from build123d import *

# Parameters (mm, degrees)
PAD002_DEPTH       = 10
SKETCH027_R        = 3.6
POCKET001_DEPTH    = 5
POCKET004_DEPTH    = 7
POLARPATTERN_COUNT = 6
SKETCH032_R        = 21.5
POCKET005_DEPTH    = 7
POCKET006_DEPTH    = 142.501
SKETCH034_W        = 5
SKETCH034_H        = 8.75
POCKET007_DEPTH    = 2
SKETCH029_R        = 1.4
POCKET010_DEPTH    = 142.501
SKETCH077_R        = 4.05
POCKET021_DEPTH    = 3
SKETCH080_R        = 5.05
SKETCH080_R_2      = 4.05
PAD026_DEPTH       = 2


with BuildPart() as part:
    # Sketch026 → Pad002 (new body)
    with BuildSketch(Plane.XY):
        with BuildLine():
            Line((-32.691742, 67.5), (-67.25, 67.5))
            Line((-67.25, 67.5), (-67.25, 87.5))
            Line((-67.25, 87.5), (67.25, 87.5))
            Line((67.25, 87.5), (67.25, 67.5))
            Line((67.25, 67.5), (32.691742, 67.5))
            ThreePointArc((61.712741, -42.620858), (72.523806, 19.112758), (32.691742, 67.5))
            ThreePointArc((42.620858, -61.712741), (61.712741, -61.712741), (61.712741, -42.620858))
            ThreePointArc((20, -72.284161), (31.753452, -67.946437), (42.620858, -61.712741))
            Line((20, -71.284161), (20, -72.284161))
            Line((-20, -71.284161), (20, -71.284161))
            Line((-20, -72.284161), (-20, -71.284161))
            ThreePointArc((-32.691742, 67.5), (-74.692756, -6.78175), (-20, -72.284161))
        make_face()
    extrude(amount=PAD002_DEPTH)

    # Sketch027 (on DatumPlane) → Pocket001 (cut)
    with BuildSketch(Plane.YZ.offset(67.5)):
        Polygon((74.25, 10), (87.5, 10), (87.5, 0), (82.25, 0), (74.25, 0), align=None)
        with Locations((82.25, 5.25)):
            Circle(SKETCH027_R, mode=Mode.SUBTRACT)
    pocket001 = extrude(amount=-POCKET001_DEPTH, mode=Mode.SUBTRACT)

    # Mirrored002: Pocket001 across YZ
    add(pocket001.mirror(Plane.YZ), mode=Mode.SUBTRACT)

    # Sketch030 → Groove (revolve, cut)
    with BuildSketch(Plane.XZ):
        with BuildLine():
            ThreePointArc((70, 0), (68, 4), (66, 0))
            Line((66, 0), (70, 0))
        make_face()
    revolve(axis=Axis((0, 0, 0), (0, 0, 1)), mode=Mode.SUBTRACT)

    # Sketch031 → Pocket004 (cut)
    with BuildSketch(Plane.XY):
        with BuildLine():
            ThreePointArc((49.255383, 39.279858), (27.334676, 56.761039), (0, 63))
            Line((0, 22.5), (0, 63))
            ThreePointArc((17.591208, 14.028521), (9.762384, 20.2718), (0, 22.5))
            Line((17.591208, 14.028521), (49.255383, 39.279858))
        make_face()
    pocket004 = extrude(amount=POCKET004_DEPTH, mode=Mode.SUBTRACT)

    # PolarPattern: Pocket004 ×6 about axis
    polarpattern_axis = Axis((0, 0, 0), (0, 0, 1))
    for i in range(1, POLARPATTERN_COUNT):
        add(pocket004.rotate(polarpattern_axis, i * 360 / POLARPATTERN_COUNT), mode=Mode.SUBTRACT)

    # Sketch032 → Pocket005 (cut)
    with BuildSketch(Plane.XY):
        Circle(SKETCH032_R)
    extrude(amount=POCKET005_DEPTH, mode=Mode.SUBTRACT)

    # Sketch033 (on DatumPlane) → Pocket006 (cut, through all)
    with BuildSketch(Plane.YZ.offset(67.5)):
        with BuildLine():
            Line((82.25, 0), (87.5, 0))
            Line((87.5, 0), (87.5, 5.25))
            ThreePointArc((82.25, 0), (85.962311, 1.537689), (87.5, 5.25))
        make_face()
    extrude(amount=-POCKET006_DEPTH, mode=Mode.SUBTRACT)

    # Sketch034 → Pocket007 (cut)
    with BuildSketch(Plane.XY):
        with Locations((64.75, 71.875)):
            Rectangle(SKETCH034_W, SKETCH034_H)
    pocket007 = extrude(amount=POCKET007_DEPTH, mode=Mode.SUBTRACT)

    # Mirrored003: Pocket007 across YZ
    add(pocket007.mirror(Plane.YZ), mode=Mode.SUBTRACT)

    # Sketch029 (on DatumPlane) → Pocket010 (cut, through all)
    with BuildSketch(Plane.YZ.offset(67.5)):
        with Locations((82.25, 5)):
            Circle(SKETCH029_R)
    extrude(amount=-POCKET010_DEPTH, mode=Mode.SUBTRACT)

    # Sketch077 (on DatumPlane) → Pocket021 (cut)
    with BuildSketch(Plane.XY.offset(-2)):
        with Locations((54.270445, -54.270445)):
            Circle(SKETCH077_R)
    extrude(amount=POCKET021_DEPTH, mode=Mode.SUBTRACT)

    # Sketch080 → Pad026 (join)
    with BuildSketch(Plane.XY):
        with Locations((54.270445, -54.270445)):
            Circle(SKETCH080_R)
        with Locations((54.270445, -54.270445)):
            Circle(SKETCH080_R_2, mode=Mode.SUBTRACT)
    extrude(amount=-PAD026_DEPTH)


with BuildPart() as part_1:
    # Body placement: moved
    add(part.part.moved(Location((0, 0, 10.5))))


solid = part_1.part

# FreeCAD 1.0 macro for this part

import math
import FreeCAD as App
import Part
import Sketcher
from FreeCAD import Vector


def add_polygon(sketch, points):
    """Adds a closed chain of lines whose ends are joined by coincident constraints."""
    first, n = sketch.GeometryCount, len(points)
    for a, b in zip(points, points[1:] + points[:1]):
        sketch.addGeometry(Part.LineSegment(App.Vector(*a, 0), App.Vector(*b, 0)), False)
    for i in range(n):
        sketch.addConstraint(Sketcher.Constraint("Coincident", first + i, 2, first + (i + 1) % n, 1))

doc = App.newDocument("Part")
params = doc.addObject("Spreadsheet::Sheet", "Params")
for row, (alias, value) in enumerate([
    ("sketch1_radius", "75 mm"),
    ("sketch1_radius2", "13.5 mm"),
    ("sketch1_width", "40 mm"),
    ("sketch1_height", "1 mm"),
    ("sketch1_height2", "20 mm"),
    ("pad1_length", "10 mm"),
    ("sketch2_diameter", "7.2 mm"),
    ("sketch2_height", "10 mm"),
    ("sketch2_width", "13.25 mm"),
    ("pocket1_length", "5 mm"),
    ("sketch3_radius", "2.5 mm"),
    ("sketch3_width", "4 mm"),
    ("groove_angle", "360 deg"),
    ("sketch4_height", "40.5 mm"),
    ("pocket2_length", "7 mm"),
    ("sketch5_diameter", "43 mm"),
    ("pocket3_length", "7 mm"),
    ("sketch6_radius", "5.249999 mm"),
    ("sketch7_width", "5 mm"),
    ("sketch7_height", "8.75 mm"),
    ("pocket5_length", "2 mm"),
    ("sketch8_diameter", "2.8 mm"),
    ("sketch9_diameter", "8.1 mm"),
    ("pocket7_length", "3 mm"),
    ("sketch10_diameter", "10.1 mm"),
    ("sketch10_diameter2", "8.1 mm"),
    ("pad2_length", "2 mm"),
], start=1):
    params.set(f"A{row}", alias)
    params.set(f"B{row}", "=" + value)
    params.setAlias(f"B{row}", alias)

body = doc.addObject("PartDesign::Body", "Body")

sketch1 = body.newObject("Sketcher::SketchObject", "Sketch")
sketch1.AttachmentSupport = (doc.getObject("XY_Plane"), [""])
sketch1.MapMode = "FlatFace"
sketch1.addGeometry(Part.LineSegment(Vector(-67.25, 67.5, 0), Vector(-32.691742, 67.5, 0)), False)
sketch1.addGeometry(Part.ArcOfCircle(Part.Circle(Vector(0, 0, 0), Vector(0, 0, 1), 75), math.radians(115.841933), math.radians(254.53399)), False)
sketch1.addGeometry(Part.LineSegment(Vector(-20, -72.284161, 0), Vector(-20, -71.284161, 0)), False)
sketch1.addGeometry(Part.LineSegment(Vector(-20, -71.284161, 0), Vector(20, -71.284161, 0)), False)
sketch1.addGeometry(Part.LineSegment(Vector(20, -71.284161, 0), Vector(20, -72.284161, 0)), False)
sketch1.addGeometry(Part.ArcOfCircle(Part.Circle(Vector(0.000016, -0.000035, 0), Vector(0, 0, 1), 74.999962), math.radians(-74.533995), math.radians(-55.369755)), False)
sketch1.addGeometry(Part.ArcOfCircle(Part.Circle(Vector(52.1668, -52.1668, 0), Vector(0, 0, 1), 13.5), math.radians(-135), math.radians(45)), False)
sketch1.addGeometry(Part.ArcOfCircle(Part.Circle(Vector(0, 0, 0), Vector(0, 0, 1), 75), math.radians(-34.63024), math.radians(64.158067)), False)
sketch1.addGeometry(Part.LineSegment(Vector(32.691742, 67.5, 0), Vector(67.25, 67.5, 0)), False)
sketch1.addGeometry(Part.LineSegment(Vector(67.25, 67.5, 0), Vector(67.25, 87.5, 0)), False)
sketch1.addGeometry(Part.LineSegment(Vector(67.25, 87.5, 0), Vector(-67.25, 87.5, 0)), False)
sketch1.addGeometry(Part.LineSegment(Vector(-67.25, 87.5, 0), Vector(-67.25, 67.5, 0)), False)
sketch1.addConstraint(Sketcher.Constraint("Coincident", 0, 2, 1, 1))
sketch1.addConstraint(Sketcher.Constraint("Coincident", 1, 2, 2, 1))
sketch1.addConstraint(Sketcher.Constraint("Coincident", 2, 2, 3, 1))
sketch1.addConstraint(Sketcher.Constraint("Coincident", 3, 2, 4, 1))
sketch1.addConstraint(Sketcher.Constraint("Coincident", 4, 2, 5, 1))
sketch1.addConstraint(Sketcher.Constraint("Coincident", 5, 2, 6, 1))
sketch1.addConstraint(Sketcher.Constraint("Coincident", 6, 2, 7, 1))
sketch1.addConstraint(Sketcher.Constraint("Coincident", 7, 2, 8, 1))
sketch1.addConstraint(Sketcher.Constraint("Coincident", 8, 2, 9, 1))
sketch1.addConstraint(Sketcher.Constraint("Coincident", 9, 2, 10, 1))
sketch1.addConstraint(Sketcher.Constraint("Coincident", 10, 2, 11, 1))
sketch1.addConstraint(Sketcher.Constraint("Coincident", 11, 2, 0, 1))
sketch1.addConstraint(Sketcher.Constraint("Horizontal", 0))
sketch1.addConstraint(Sketcher.Constraint("Vertical", 2))
sketch1.addConstraint(Sketcher.Constraint("Horizontal", 3))
sketch1.addConstraint(Sketcher.Constraint("Vertical", 4))
sketch1.addConstraint(Sketcher.Constraint("Horizontal", 8))
sketch1.addConstraint(Sketcher.Constraint("Vertical", 9))
sketch1.addConstraint(Sketcher.Constraint("Horizontal", 10))
sketch1.addConstraint(Sketcher.Constraint("Vertical", 11))
sketch1.addConstraint(Sketcher.Constraint("Coincident", 1, 3, -1, 1))
sketch1.addConstraint(Sketcher.Constraint("Coincident", 7, 3, -1, 1))
sketch1.addConstraint(Sketcher.Constraint("Equal", 1, 7))
sketch1.addConstraint(Sketcher.Constraint("Symmetric", 1, 2, 4, 2, -2))
sketch1.addConstraint(Sketcher.Constraint("Symmetric", 8, 2, 11, 2, -2))
sketch1.addConstraint(Sketcher.Constraint("Radius", 1, 75.0))
sketch1.addConstraint(Sketcher.Constraint("Radius", 6, 13.5))
sketch1.addConstraint(Sketcher.Constraint("DistanceX", 3, 1, 3, 2, 40.0))
sketch1.addConstraint(Sketcher.Constraint("DistanceY", 2, 1, 2, 2, 1.0))
sketch1.addConstraint(Sketcher.Constraint("DistanceY", 9, 1, 9, 2, 20.0))
sketch1.addConstraint(Sketcher.Constraint("DistanceX", 10, 2, 10, 1, 134.5))
sketch1.addConstraint(Sketcher.Constraint("DistanceY", -1, 1, 0, 2, 67.5))
sketch1.addConstraint(Sketcher.Constraint("Radius", 5, 74.999962))
sketch1.addConstraint(Sketcher.Constraint("DistanceX", 7, 2, 6, 2, 29.020999))
sketch1.addConstraint(Sketcher.Constraint("DistanceX", -1, 1, 6, 3, 52.1668))
sketch1.addConstraint(Sketcher.Constraint("DistanceX", -1, 1, 5, 2, 42.620858))
sketch1.setExpression("Constraints[25]", "Params.sketch1_radius")
sketch1.setExpression("Constraints[26]", "Params.sketch1_radius2")
sketch1.setExpression("Constraints[27]", "Params.sketch1_width")
sketch1.setExpression("Constraints[28]", "Params.sketch1_height")
sketch1.setExpression("Constraints[29]", "Params.sketch1_height2")
pad1 = body.newObject("PartDesign::Pad", "Pad")
pad1.Profile = sketch1
pad1.setExpression("Length", "Params.pad1_length")

sketch2 = body.newObject("Sketcher::SketchObject", "Sketch001")
sketch2.AttachmentSupport = (doc.getObject("YZ_Plane"), [""])
sketch2.MapMode = "FlatFace"
sketch2.AttachmentOffset = App.Placement(Vector(0, 0, 67.5), App.Rotation())
add_polygon(sketch2, [(87.5, 10), (74.25, 10), (74.25, 0), (87.5, 0)])
sketch2.addGeometry(Part.Circle(Vector(82.25, 5.25, 0), Vector(0, 0, 1), 3.6), False)
sketch2.addConstraint(Sketcher.Constraint("Horizontal", 0))
sketch2.addConstraint(Sketcher.Constraint("Vertical", 1))
sketch2.addConstraint(Sketcher.Constraint("Horizontal", 2))
sketch2.addConstraint(Sketcher.Constraint("Vertical", 3))
sketch2.addConstraint(Sketcher.Constraint("PointOnObject", 1, 2, -1))
sketch2.addConstraint(Sketcher.Constraint("Diameter", 4, 7.2))
sketch2.addConstraint(Sketcher.Constraint("DistanceY", 1, 2, 1, 1, 10.0))
sketch2.addConstraint(Sketcher.Constraint("DistanceX", 0, 2, 4, 3, 8.0))
sketch2.addConstraint(Sketcher.Constraint("DistanceX", 0, 2, 0, 1, 13.25))
sketch2.addConstraint(Sketcher.Constraint("DistanceX", -1, 1, 2, 2, 87.5))
sketch2.addConstraint(Sketcher.Constraint("DistanceY", -1, 1, 4, 3, 5.25))
sketch2.setExpression("Constraints[9]", "Params.sketch2_diameter")
sketch2.setExpression("Constraints[10]", "Params.sketch2_height")
sketch2.setExpression("Constraints[12]", "Params.sketch2_width")
pocket1 = body.newObject("PartDesign::Pocket", "Pocket")
pocket1.Profile = sketch2
pocket1.setExpression("Length", "Params.pocket1_length")
doc.recompute()

mirrored = body.newObject("PartDesign::Mirrored", "Mirrored")
mirrored.Originals = [pocket1]
mirrored.MirrorPlane = (doc.getObject("YZ_Plane"), [""])
body.Tip = mirrored

sketch3 = body.newObject("Sketcher::SketchObject", "Sketch002")
sketch3.AttachmentSupport = (doc.getObject("XZ_Plane"), [""])
sketch3.MapMode = "FlatFace"
sketch3.addGeometry(Part.ArcOfCircle(Part.Circle(Vector(68, 1.5, 0), Vector(0, 0, 1), 2.5), math.radians(-36.869898), math.radians(216.869898)), False)
sketch3.addGeometry(Part.LineSegment(Vector(66, 0, 0), Vector(70, 0, 0)), False)
sketch3.addConstraint(Sketcher.Constraint("Coincident", 0, 1, 1, 2))
sketch3.addConstraint(Sketcher.Constraint("Coincident", 1, 1, 0, 2))
sketch3.addConstraint(Sketcher.Constraint("Horizontal", 1))
sketch3.addConstraint(Sketcher.Constraint("PointOnObject", 0, 1, -1))
sketch3.addConstraint(Sketcher.Constraint("Radius", 0, 2.5))
sketch3.addConstraint(Sketcher.Constraint("DistanceX", 1, 1, 1, 2, 4.0))
sketch3.addConstraint(Sketcher.Constraint("DistanceX", -1, 1, 0, 3, 68.0))
sketch3.setExpression("Constraints[4]", "Params.sketch3_radius")
sketch3.setExpression("Constraints[5]", "Params.sketch3_width")
groove = body.newObject("PartDesign::Groove", "Groove")
groove.Profile = sketch3
groove.ReferenceAxis = (sketch3, ["V_Axis"])
groove.setExpression("Angle", "Params.groove_angle")

sketch4 = body.newObject("Sketcher::SketchObject", "Sketch003")
sketch4.AttachmentSupport = (doc.getObject("XY_Plane"), [""])
sketch4.MapMode = "FlatFace"
sketch4.addGeometry(Part.ArcOfCircle(Part.Circle(Vector(0.000002, 0.000004, 0), Vector(0, 0, 1), 62.999996), math.radians(38.571427), math.radians(90.000002)), False)
sketch4.addGeometry(Part.LineSegment(Vector(0, 63, 0), Vector(0, 22.5, 0)), False)
sketch4.addGeometry(Part.ArcOfCircle(Part.Circle(Vector(0.000002, 0.000003, 0), Vector(0, 0, 1), 22.499997), math.radians(38.571426), math.radians(90.000004)), False)
sketch4.addGeometry(Part.LineSegment(Vector(17.591208, 14.028521, 0), Vector(49.255383, 39.279858, 0)), False)
sketch4.addConstraint(Sketcher.Constraint("Coincident", 0, 2, 1, 1))
sketch4.addConstraint(Sketcher.Constraint("Coincident", 1, 2, 2, 2))
sketch4.addConstraint(Sketcher.Constraint("Coincident", 2, 1, 3, 1))
sketch4.addConstraint(Sketcher.Constraint("Coincident", 3, 2, 0, 1))
sketch4.addConstraint(Sketcher.Constraint("Vertical", 1))
sketch4.addConstraint(Sketcher.Constraint("Coincident", 0, 3, -1, 1))
sketch4.addConstraint(Sketcher.Constraint("Coincident", 2, 3, -1, 1))
sketch4.addConstraint(Sketcher.Constraint("PointOnObject", 0, 2, -2))
sketch4.addConstraint(Sketcher.Constraint("DistanceY", 1, 2, 1, 1, 40.5))
sketch4.addConstraint(Sketcher.Constraint("DistanceY", -1, 1, 0, 2, 63.0))
sketch4.addConstraint(Sketcher.Constraint("DistanceX", -1, 1, 2, 1, 17.591208))
sketch4.addConstraint(Sketcher.Constraint("DistanceY", 3, 2, 0, 2, 23.720142))
sketch4.setExpression("Constraints[8]", "Params.sketch4_height")
pocket2 = body.newObject("PartDesign::Pocket", "Pocket001")
pocket2.Profile = sketch4
pocket2.setExpression("Length", "Params.pocket2_length")
pocket2.Reversed = True
doc.recompute()

polarpattern = body.newObject("PartDesign::PolarPattern", "PolarPattern")
polarpattern.Originals = [pocket2]
polarpattern.Axis = (doc.getObject("Z_Axis"), [""])
polarpattern.Angle = 360
polarpattern.Occurrences = 6
body.Tip = polarpattern

sketch5 = body.newObject("Sketcher::SketchObject", "Sketch004")
sketch5.AttachmentSupport = (doc.getObject("XY_Plane"), [""])
sketch5.MapMode = "FlatFace"
sketch5.addGeometry(Part.Circle(Vector(0, 0, 0), Vector(0, 0, 1), 21.5), False)
sketch5.addConstraint(Sketcher.Constraint("Coincident", 0, 3, -1, 1))
sketch5.addConstraint(Sketcher.Constraint("Diameter", 0, 43.0))
sketch5.setExpression("Constraints[1]", "Params.sketch5_diameter")
pocket3 = body.newObject("PartDesign::Pocket", "Pocket002")
pocket3.Profile = sketch5
pocket3.setExpression("Length", "Params.pocket3_length")
pocket3.Reversed = True

sketch6 = body.newObject("Sketcher::SketchObject", "Sketch005")
sketch6.AttachmentSupport = (doc.getObject("YZ_Plane"), [""])
sketch6.MapMode = "FlatFace"
sketch6.AttachmentOffset = App.Placement(Vector(0, 0, 67.5), App.Rotation())
sketch6.addGeometry(Part.LineSegment(Vector(82.25, 0, 0), Vector(87.5, 0, 0)), False)
sketch6.addGeometry(Part.LineSegment(Vector(87.5, 0, 0), Vector(87.5, 5.25, 0)), False)
sketch6.addGeometry(Part.ArcOfCircle(Part.Circle(Vector(82.250001, 5.249999, 0), Vector(0, 0, 1), 5.249999), math.radians(-90.000015), math.radians(0.000015)), False)
sketch6.addConstraint(Sketcher.Constraint("Coincident", 0, 2, 1, 1))
sketch6.addConstraint(Sketcher.Constraint("Tangent", 1, 2, 2, 2))
sketch6.addConstraint(Sketcher.Constraint("Tangent", 2, 1, 0, 1))
sketch6.addConstraint(Sketcher.Constraint("Horizontal", 0))
sketch6.addConstraint(Sketcher.Constraint("Vertical", 1))
sketch6.addConstraint(Sketcher.Constraint("PointOnObject", 0, 2, -1))
sketch6.addConstraint(Sketcher.Constraint("Radius", 2, 5.249999))
sketch6.addConstraint(Sketcher.Constraint("DistanceX", -1, 1, 0, 2, 87.5))
sketch6.setExpression("Constraints[6]", "Params.sketch6_radius")
pocket4 = body.newObject("PartDesign::Pocket", "Pocket003")
pocket4.Profile = sketch6
pocket4.Type = "ThroughAll"

sketch7 = body.newObject("Sketcher::SketchObject", "Sketch006")
sketch7.AttachmentSupport = (doc.getObject("XY_Plane"), [""])
sketch7.MapMode = "FlatFace"
add_polygon(sketch7, [(62.25, 76.25), (62.25, 67.5), (67.25, 67.5), (67.25, 76.25)])
sketch7.addConstraint(Sketcher.Constraint("Vertical", 0))
sketch7.addConstraint(Sketcher.Constraint("Horizontal", 1))
sketch7.addConstraint(Sketcher.Constraint("Vertical", 2))
sketch7.addConstraint(Sketcher.Constraint("Horizontal", 3))
sketch7.addConstraint(Sketcher.Constraint("DistanceX", 1, 1, 1, 2, 5.0))
sketch7.addConstraint(Sketcher.Constraint("DistanceY", 0, 2, 0, 1, 8.75))
sketch7.addConstraint(Sketcher.Constraint("DistanceY", -1, 1, 0, 2, 67.5))
sketch7.addConstraint(Sketcher.Constraint("DistanceX", -1, 1, 0, 2, 62.25))
sketch7.setExpression("Constraints[8]", "Params.sketch7_width")
sketch7.setExpression("Constraints[9]", "Params.sketch7_height")
pocket5 = body.newObject("PartDesign::Pocket", "Pocket004")
pocket5.Profile = sketch7
pocket5.setExpression("Length", "Params.pocket5_length")
pocket5.Reversed = True
doc.recompute()

mirrored2 = body.newObject("PartDesign::Mirrored", "Mirrored001")
mirrored2.Originals = [pocket5]
mirrored2.MirrorPlane = (doc.getObject("YZ_Plane"), [""])
body.Tip = mirrored2

sketch8 = body.newObject("Sketcher::SketchObject", "Sketch007")
sketch8.AttachmentSupport = (doc.getObject("YZ_Plane"), [""])
sketch8.MapMode = "FlatFace"
sketch8.AttachmentOffset = App.Placement(Vector(0, 0, 67.5), App.Rotation())
sketch8.addGeometry(Part.Circle(Vector(82.25, 5, 0), Vector(0, 0, 1), 1.4), False)
sketch8.addConstraint(Sketcher.Constraint("Diameter", 0, 2.8))
sketch8.addConstraint(Sketcher.Constraint("DistanceY", -1, 1, 0, 3, 5.0))
sketch8.addConstraint(Sketcher.Constraint("DistanceX", -1, 1, 0, 3, 82.25))
sketch8.setExpression("Constraints[0]", "Params.sketch8_diameter")
pocket6 = body.newObject("PartDesign::Pocket", "Pocket005")
pocket6.Profile = sketch8
pocket6.Type = "ThroughAll"

sketch9 = body.newObject("Sketcher::SketchObject", "Sketch008")
sketch9.AttachmentSupport = (doc.getObject("XY_Plane"), [""])
sketch9.MapMode = "FlatFace"
sketch9.AttachmentOffset = App.Placement(Vector(0, 0, -2), App.Rotation())
sketch9.addGeometry(Part.Circle(Vector(54.270445, -54.270445, 0), Vector(0, 0, 1), 4.05), False)
sketch9.addConstraint(Sketcher.Constraint("Diameter", 0, 8.1))
sketch9.addConstraint(Sketcher.Constraint("DistanceX", -1, 1, 0, 3, 54.270445))
sketch9.addConstraint(Sketcher.Constraint("DistanceY", 0, 3, -1, 1, 54.270445))
sketch9.setExpression("Constraints[0]", "Params.sketch9_diameter")
pocket7 = body.newObject("PartDesign::Pocket", "Pocket006")
pocket7.Profile = sketch9
pocket7.setExpression("Length", "Params.pocket7_length")
pocket7.Reversed = True

sketch10 = body.newObject("Sketcher::SketchObject", "Sketch009")
sketch10.AttachmentSupport = (doc.getObject("XY_Plane"), [""])
sketch10.MapMode = "FlatFace"
sketch10.addGeometry(Part.Circle(Vector(54.270445, -54.270445, 0), Vector(0, 0, 1), 5.05), False)
sketch10.addGeometry(Part.Circle(Vector(54.270445, -54.270445, 0), Vector(0, 0, 1), 4.05), False)
sketch10.addConstraint(Sketcher.Constraint("Coincident", 1, 3, 0, 3))
sketch10.addConstraint(Sketcher.Constraint("Diameter", 0, 10.1))
sketch10.addConstraint(Sketcher.Constraint("Diameter", 1, 8.1))
sketch10.addConstraint(Sketcher.Constraint("DistanceX", -1, 1, 0, 3, 54.270445))
sketch10.addConstraint(Sketcher.Constraint("DistanceY", 0, 3, -1, 1, 54.270445))
sketch10.setExpression("Constraints[1]", "Params.sketch10_diameter")
sketch10.setExpression("Constraints[2]", "Params.sketch10_diameter2")
pad2 = body.newObject("PartDesign::Pad", "Pad001")
pad2.Profile = sketch10
pad2.setExpression("Length", "Params.pad2_length")
pad2.Reversed = True
body2 = doc.addObject("PartDesign::Body", "Body001")
doc.recompute()

body.Placement = App.Placement(Vector(0, 0, 10.5), App.Rotation(Vector(0, 0, 1), 0))
boolean = body2.newObject("PartDesign::Boolean", "Boolean")
boolean.Type = "Fuse"
boolean.addObjects([body])

doc.recompute()
